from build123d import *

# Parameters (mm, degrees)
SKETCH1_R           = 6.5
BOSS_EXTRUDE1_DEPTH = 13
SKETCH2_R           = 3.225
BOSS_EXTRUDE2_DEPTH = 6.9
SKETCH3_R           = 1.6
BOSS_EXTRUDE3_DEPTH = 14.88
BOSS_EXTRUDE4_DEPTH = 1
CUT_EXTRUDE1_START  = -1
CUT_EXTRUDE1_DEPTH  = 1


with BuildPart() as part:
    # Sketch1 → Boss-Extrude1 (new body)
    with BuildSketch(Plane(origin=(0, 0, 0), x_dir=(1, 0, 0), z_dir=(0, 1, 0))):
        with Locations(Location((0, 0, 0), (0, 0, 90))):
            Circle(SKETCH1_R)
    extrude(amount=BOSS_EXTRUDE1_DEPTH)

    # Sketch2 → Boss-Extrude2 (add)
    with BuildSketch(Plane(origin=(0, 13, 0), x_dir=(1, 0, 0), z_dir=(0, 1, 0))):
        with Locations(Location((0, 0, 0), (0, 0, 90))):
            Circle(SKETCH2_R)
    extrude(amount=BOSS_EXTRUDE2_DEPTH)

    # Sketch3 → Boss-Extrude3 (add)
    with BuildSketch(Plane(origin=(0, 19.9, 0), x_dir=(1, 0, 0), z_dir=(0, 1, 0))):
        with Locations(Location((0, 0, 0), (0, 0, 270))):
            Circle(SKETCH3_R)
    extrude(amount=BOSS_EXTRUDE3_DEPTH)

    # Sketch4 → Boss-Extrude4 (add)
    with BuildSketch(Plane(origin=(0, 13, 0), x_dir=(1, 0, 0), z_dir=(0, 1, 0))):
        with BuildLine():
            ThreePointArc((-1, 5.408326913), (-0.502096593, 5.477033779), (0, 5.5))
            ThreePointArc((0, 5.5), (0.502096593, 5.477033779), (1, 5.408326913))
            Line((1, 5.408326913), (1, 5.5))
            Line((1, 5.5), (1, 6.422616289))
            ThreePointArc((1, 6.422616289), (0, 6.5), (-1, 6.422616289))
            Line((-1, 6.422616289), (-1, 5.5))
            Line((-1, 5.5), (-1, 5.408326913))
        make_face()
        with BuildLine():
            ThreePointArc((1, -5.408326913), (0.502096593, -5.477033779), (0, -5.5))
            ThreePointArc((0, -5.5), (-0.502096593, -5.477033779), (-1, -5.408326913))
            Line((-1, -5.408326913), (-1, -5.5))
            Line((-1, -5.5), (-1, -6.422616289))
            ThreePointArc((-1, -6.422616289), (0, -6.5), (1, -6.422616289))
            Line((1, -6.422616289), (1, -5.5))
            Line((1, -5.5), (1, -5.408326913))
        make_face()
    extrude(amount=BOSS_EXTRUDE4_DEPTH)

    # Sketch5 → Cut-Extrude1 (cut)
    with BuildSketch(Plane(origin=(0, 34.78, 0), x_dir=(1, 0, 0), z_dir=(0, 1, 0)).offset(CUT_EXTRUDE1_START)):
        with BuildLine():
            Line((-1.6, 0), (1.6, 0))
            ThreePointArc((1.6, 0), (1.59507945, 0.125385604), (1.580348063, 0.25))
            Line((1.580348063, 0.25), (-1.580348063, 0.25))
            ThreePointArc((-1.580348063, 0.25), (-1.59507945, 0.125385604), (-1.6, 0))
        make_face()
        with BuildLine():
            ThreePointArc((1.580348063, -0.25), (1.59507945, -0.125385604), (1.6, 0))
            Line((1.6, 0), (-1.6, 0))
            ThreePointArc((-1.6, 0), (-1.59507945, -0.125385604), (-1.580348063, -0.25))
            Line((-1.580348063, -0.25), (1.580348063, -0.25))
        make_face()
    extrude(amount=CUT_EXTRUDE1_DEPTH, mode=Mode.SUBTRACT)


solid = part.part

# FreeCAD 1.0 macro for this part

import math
import FreeCAD as App
import Part
import Sketcher

V = App.Vector

doc = App.newDocument("Part")
body = doc.addObject("PartDesign::Body", "Body")

# Sketch on XZ plane
sketch1 = body.newObject("Sketcher::SketchObject", "Sketch")
sketch1.AttachmentSupport = (doc.getObject("XZ_Plane"), [""])
sketch1.MapMode = "FlatFace"
sketch1.addGeometry(Part.Circle(V(0, 0, 0), V(0, 0, 1), 6.5), False)
sketch1.addConstraint([
    Sketcher.Constraint("Coincident", 0, 3, -1, 1),
    Sketcher.Constraint("Diameter", 0, 13.0),
])
pad1 = body.newObject("PartDesign::Pad", "Pad")
pad1.Profile = sketch1
pad1.Length = 13
pad1.Reversed = True

# Sketch on XZ plane
sketch2 = body.newObject("Sketcher::SketchObject", "Sketch001")
sketch2.AttachmentSupport = (doc.getObject("XZ_Plane"), [""])
sketch2.MapMode = "FlatFace"
sketch2.AttachmentOffset = App.Placement(V(0, 0, -13), App.Rotation())
sketch2.addGeometry(Part.Circle(V(0, 0, 0), V(0, 0, 1), 3.225), False)
sketch2.addConstraint([
    Sketcher.Constraint("Coincident", 0, 3, -1, 1),
    Sketcher.Constraint("Diameter", 0, 6.45),
])
pad2 = body.newObject("PartDesign::Pad", "Pad001")
pad2.Profile = sketch2
pad2.Length = 6.9
pad2.Reversed = True

# Sketch on XZ plane
sketch3 = body.newObject("Sketcher::SketchObject", "Sketch002")
sketch3.AttachmentSupport = (doc.getObject("XZ_Plane"), [""])
sketch3.MapMode = "FlatFace"
sketch3.AttachmentOffset = App.Placement(V(0, 0, -19.9), App.Rotation())
sketch3.addGeometry(Part.Circle(V(0, 0, 0), V(0, 0, 1), 1.6), False)
sketch3.addConstraint([
    Sketcher.Constraint("Coincident", 0, 3, -1, 1),
    Sketcher.Constraint("Diameter", 0, 3.2),
])
pad3 = body.newObject("PartDesign::Pad", "Pad002")
pad3.Profile = sketch3
pad3.Length = 14.88
pad3.Reversed = True

# Sketch on XZ plane
sketch4 = body.newObject("Sketcher::SketchObject", "Sketch003")
sketch4.AttachmentSupport = (doc.getObject("XZ_Plane"), [""])
sketch4.MapMode = "FlatFace"
sketch4.AttachmentOffset = App.Placement(V(0, 0, -13), App.Rotation())
sketch4.addGeometry([
    Part.ArcOfCircle(Part.Circle(V(0, 0, 0), V(0, 0, 1), 5.5), math.radians(-100.475682), math.radians(-90)),  # 0
    Part.ArcOfCircle(Part.Circle(V(0, 0, 0), V(0, 0, 1), 5.5), math.radians(-90), math.radians(-79.524318)),  # 1
    Part.LineSegment(V(1, -5.408327, 0), V(1, -6.422616, 0)),  # 2
    Part.ArcOfCircle(Part.Circle(V(0, 0, 0), V(0, 0, 1), 6.5), math.radians(-98.849883), math.radians(-81.150117)),  # 3
    Part.LineSegment(V(-1, -6.422616, 0), V(-1, -5.408327, 0)),  # 4
    Part.ArcOfCircle(Part.Circle(V(0, 0, 0), V(0, 0, 1), 5.5), math.radians(79.524318), math.radians(90)),  # 5
    Part.ArcOfCircle(Part.Circle(V(0, 0, 0), V(0, 0, 1), 5.5), math.radians(90), math.radians(100.475682)),  # 6
    Part.LineSegment(V(-1, 5.408327, 0), V(-1, 6.422616, 0)),  # 7
    Part.ArcOfCircle(Part.Circle(V(0, 0, 0), V(0, 0, 1), 6.5), math.radians(81.150117), math.radians(98.849883)),  # 8
    Part.LineSegment(V(1, 6.422616, 0), V(1, 5.408327, 0)),  # 9
], False)
sketch4.addConstraint([
    Sketcher.Constraint("Tangent", 0, 2, 1, 1),
    Sketcher.Constraint("Coincident", 1, 2, 2, 1),
    Sketcher.Constraint("Coincident", 2, 2, 3, 2),
    Sketcher.Constraint("Coincident", 3, 1, 4, 1),
    Sketcher.Constraint("Coincident", 4, 2, 0, 1),
    Sketcher.Constraint("Tangent", 5, 2, 6, 1),
    Sketcher.Constraint("Coincident", 6, 2, 7, 1),
    Sketcher.Constraint("Coincident", 7, 2, 8, 2),
    Sketcher.Constraint("Coincident", 8, 1, 9, 1),
    Sketcher.Constraint("Coincident", 9, 2, 5, 1),
    Sketcher.Constraint("Vertical", 2),
    Sketcher.Constraint("Vertical", 4),
    Sketcher.Constraint("Vertical", 7),
    Sketcher.Constraint("Vertical", 9),
    Sketcher.Constraint("Coincident", 0, 3, -1, 1),
    Sketcher.Constraint("Coincident", 3, 3, -1, 1),
    Sketcher.Constraint("Coincident", 5, 3, -1, 1),
    Sketcher.Constraint("Coincident", 8, 3, -1, 1),
    Sketcher.Constraint("Equal", 0, 1),
    Sketcher.Constraint("Equal", 1, 5),
    Sketcher.Constraint("Equal", 5, 6),
    Sketcher.Constraint("Equal", 3, 8),
    Sketcher.Constraint("PointOnObject", 0, 2, -2),
    Sketcher.Constraint("PointOnObject", 5, 2, -2),
    Sketcher.Constraint("Horizontal", 2, 2, 3, 1),
    Sketcher.Constraint("Horizontal", 7, 2, 8, 1),
    Sketcher.Constraint("Vertical", 4, 2, 6, 2),
    Sketcher.Constraint("Radius", 0, 5.5),
    Sketcher.Constraint("Radius", 3, 6.5),
    Sketcher.Constraint("DistanceX", -1, 1, 1, 2, 1.0),
])
pad4 = body.newObject("PartDesign::Pad", "Pad003")
pad4.Profile = sketch4
pad4.Length = 1
pad4.Reversed = True

# Sketch on XZ plane
sketch5 = body.newObject("Sketcher::SketchObject", "Sketch004")
sketch5.AttachmentSupport = (doc.getObject("XZ_Plane"), [""])
sketch5.MapMode = "FlatFace"
sketch5.AttachmentOffset = App.Placement(V(0, 0, -33.78), App.Rotation())
sketch5.addGeometry([
    Part.ArcOfCircle(Part.Circle(V(0, 0, 0), V(0, 0, 1), 1.6), math.radians(-8.9893), math.radians(0)),  # 0
    Part.LineSegment(V(1.580348, -0.25, 0), V(-1.580348, -0.25, 0)),  # 1
    Part.ArcOfCircle(Part.Circle(V(0, 0, 0), V(0, 0, 1), 1.6), math.radians(180), math.radians(188.9893)),  # 2
    Part.ArcOfCircle(Part.Circle(V(0, 0, 0), V(0, 0, 1), 1.6), math.radians(171.0107), math.radians(180)),  # 3
    Part.LineSegment(V(-1.580348, 0.25, 0), V(1.580348, 0.25, 0)),  # 4
    Part.ArcOfCircle(Part.Circle(V(0, 0, 0), V(0, 0, 1), 1.6), math.radians(0), math.radians(8.9893)),  # 5
], False)
sketch5.addConstraint([
    Sketcher.Constraint("Coincident", 0, 1, 1, 1),
    Sketcher.Constraint("Coincident", 1, 2, 2, 2),
    Sketcher.Constraint("Tangent", 2, 1, 3, 2),
    Sketcher.Constraint("Coincident", 3, 1, 4, 1),
    Sketcher.Constraint("Coincident", 4, 2, 5, 2),
    Sketcher.Constraint("Tangent", 5, 1, 0, 2),
    Sketcher.Constraint("Horizontal", 1),
    Sketcher.Constraint("Horizontal", 4),
    Sketcher.Constraint("Coincident", 0, 3, -1, 1),
    Sketcher.Constraint("Coincident", 2, 3, -1, 1),
    Sketcher.Constraint("Equal", 0, 2),
    Sketcher.Constraint("Equal", 2, 3),
    Sketcher.Constraint("Equal", 3, 5),
    Sketcher.Constraint("PointOnObject", 2, 1, -1),
    Sketcher.Constraint("PointOnObject", 5, 1, -1),
    Sketcher.Constraint("Vertical", 1, 2, 3, 1),
    Sketcher.Constraint("Radius", 0, 1.6),
    Sketcher.Constraint("DistanceY", 1, 2, 3, 1, 0.5),
])
pocket1 = body.newObject("PartDesign::Pocket", "Pocket")
pocket1.Profile = sketch5
pocket1.Length = 1

doc.recompute()
